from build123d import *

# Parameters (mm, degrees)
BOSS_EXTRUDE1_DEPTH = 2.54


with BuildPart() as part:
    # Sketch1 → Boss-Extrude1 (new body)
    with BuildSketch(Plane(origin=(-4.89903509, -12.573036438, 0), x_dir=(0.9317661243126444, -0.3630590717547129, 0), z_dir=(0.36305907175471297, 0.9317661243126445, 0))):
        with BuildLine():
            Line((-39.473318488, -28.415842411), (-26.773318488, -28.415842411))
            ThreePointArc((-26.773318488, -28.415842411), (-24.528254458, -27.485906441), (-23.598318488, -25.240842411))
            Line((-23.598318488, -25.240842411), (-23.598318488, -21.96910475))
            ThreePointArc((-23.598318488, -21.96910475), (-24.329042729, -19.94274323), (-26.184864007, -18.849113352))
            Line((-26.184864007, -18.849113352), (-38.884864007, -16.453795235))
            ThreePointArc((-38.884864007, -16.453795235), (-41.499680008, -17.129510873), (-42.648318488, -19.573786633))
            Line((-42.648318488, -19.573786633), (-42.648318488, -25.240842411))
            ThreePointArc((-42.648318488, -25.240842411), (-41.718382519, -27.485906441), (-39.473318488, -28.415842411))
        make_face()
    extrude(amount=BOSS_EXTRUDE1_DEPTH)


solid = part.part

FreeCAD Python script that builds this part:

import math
import FreeCAD as App
import Part
import Sketcher
from FreeCAD import Vector
Q = App.Units.Quantity

doc = App.newDocument("Part")
body = doc.addObject("PartDesign::Body", "Body")

# Sketch on an angled plane
sketch1 = body.newObject("Sketcher::SketchObject", "Sketch")
sketch1.Placement = App.Placement(Vector(-4.899035, -12.573036, 0), App.Rotation(Vector(0.931766124, -0.363059072, 0), Vector(0, 0, -1), Vector(0.363059072, 0.931766124, 0), "ZXY"))
sketch1.addGeometry([
    Part.LineSegment(Vector(-39.5, -28.4, 0), Vector(-26.8, -28.4, 0)),  # 0
    Part.ArcOfCircle(Part.Circle(Vector(-26.8, -25.2, 0), Vector(0, 0, 1), 3.2), math.radians(-90), math.radians(0)),  # 1
    Part.LineSegment(Vector(-23.6, -25.2, 0), Vector(-23.6, -22, 0)),  # 2
    Part.ArcOfCircle(Part.Circle(Vector(-26.8, -22, 0), Vector(0, 0, 1), 3.2), math.radians(0), math.radians(79)),  # 3
    Part.LineSegment(Vector(-26.2, -18.8, 0), Vector(-38.9, -16.5, 0)),  # 4
    Part.ArcOfCircle(Part.Circle(Vector(-39.5, -19.6, 0), Vector(0, 0, 1), 3.2), math.radians(79), math.radians(180)),  # 5
    Part.LineSegment(Vector(-42.6, -19.6, 0), Vector(-42.6, -25.2, 0)),  # 6
    Part.ArcOfCircle(Part.Circle(Vector(-39.5, -25.2, 0), Vector(0, 0, 1), 3.2), math.radians(180), math.radians(270)),  # 7
], False)
sketch1.addConstraint([
    Sketcher.Constraint("Tangent", 0, 2, 1, 1),
    Sketcher.Constraint("Tangent", 1, 2, 2, 1),
    Sketcher.Constraint("Tangent", 2, 2, 3, 1),
    Sketcher.Constraint("Tangent", 3, 2, 4, 1),
    Sketcher.Constraint("Tangent", 4, 2, 5, 1),
    Sketcher.Constraint("Tangent", 5, 2, 6, 1),
    Sketcher.Constraint("Tangent", 6, 2, 7, 1),
    Sketcher.Constraint("Tangent", 7, 2, 0, 1),
    Sketcher.Constraint("Horizontal", 0),
    Sketcher.Constraint("Vertical", 2),
    Sketcher.Constraint("Vertical", 6),
    Sketcher.Constraint("Equal", 1, 3),
    Sketcher.Constraint("Equal", 3, 5),
    Sketcher.Constraint("Equal", 5, 7),
    Sketcher.Constraint("DistanceX", 0, 1, 0, 2, Q("0.5 in")),
    Sketcher.Constraint("Radius", 1, Q("0.125 in")),
    Sketcher.Constraint("DistanceX", 3, 2, -1, 1, Q("1.0309002 in")),
    Sketcher.Constraint("DistanceY", 2, 1, 2, 2, 3.271738),
    Sketcher.Constraint("DistanceY", 6, 2, 6, 1, 5.667056),
    Sketcher.Constraint("DistanceY", 1, 3, -1, 1, 25.240842),
])
pad1 = body.newObject("PartDesign::Pad", "Pad")
pad1.Profile = sketch1
pad1.Length = Q("0.1 in")

doc.recompute()
